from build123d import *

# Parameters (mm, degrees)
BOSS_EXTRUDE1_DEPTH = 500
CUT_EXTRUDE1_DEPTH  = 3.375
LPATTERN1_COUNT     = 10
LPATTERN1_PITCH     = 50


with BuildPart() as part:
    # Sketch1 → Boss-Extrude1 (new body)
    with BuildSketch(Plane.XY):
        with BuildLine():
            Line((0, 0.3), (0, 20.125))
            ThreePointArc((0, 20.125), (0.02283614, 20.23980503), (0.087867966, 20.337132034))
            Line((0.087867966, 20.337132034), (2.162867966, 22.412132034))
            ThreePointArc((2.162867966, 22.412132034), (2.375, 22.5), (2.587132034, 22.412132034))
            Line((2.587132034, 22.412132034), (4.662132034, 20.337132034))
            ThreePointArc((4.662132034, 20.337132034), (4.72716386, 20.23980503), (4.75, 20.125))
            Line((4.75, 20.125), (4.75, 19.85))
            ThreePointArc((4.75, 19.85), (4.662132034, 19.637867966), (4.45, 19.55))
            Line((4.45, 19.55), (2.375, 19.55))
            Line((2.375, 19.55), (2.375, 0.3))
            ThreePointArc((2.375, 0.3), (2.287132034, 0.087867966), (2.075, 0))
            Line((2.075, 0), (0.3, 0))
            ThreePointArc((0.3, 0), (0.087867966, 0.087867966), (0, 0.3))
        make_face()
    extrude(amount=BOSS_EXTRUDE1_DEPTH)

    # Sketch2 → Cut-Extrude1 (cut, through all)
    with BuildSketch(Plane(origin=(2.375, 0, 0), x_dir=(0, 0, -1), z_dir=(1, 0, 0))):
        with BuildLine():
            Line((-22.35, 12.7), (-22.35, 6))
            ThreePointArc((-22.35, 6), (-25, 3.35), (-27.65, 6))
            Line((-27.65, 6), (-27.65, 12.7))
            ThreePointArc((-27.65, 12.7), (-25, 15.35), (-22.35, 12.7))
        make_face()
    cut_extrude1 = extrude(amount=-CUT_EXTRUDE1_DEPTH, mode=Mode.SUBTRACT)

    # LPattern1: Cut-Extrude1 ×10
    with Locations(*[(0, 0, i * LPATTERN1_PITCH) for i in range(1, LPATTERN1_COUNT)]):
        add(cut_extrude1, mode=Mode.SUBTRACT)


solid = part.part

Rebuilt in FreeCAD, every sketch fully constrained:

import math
import FreeCAD as App
import Part
import Sketcher
from FreeCAD import Vector
Q = App.Units.Quantity

doc = App.newDocument("Part")
body = doc.addObject("PartDesign::Body", "Body")

# Sketch on XY plane
sketch1 = doc.addObject("Sketcher::SketchObject", "Sketch")
body.addObject(sketch1)
sketch1.AttachmentSupport = (doc.XY_Plane, [""])
sketch1.MapMode = "FlatFace"
sketch1.addGeometry(Part.LineSegment(Vector(0, 20.12, 0), Vector(0, 0.3, 0)), False)
sketch1.addGeometry(Part.ArcOfCircle(Part.Circle(Vector(0.3, 0.3, 0), Vector(0, 0, 1), 0.3), math.radians(-180), math.radians(-90)), False)
sketch1.addGeometry(Part.LineSegment(Vector(0.3, 0, 0), Vector(2.08, 0, 0)), False)
sketch1.addGeometry(Part.ArcOfCircle(Part.Circle(Vector(2.07, 0.3, 0), Vector(0, 0, 1), 0.3), math.radians(-90), math.radians(0)), False)
sketch1.addGeometry(Part.LineSegment(Vector(2.38, 0.3, 0), Vector(2.38, 19.55, 0)), False)
sketch1.addGeometry(Part.LineSegment(Vector(2.38, 19.55, 0), Vector(4.45, 19.55, 0)), False)
sketch1.addGeometry(Part.ArcOfCircle(Part.Circle(Vector(4.45, 19.85, 0), Vector(0, 0, 1), 0.3), math.radians(-90), math.radians(0)), False)
sketch1.addGeometry(Part.LineSegment(Vector(4.75, 19.85, 0), Vector(4.75, 20.12, 0)), False)
sketch1.addGeometry(Part.ArcOfCircle(Part.Circle(Vector(4.45, 20.13, 0), Vector(0, 0, 1), 0.3), math.radians(0), math.radians(45)), False)
sketch1.addGeometry(Part.LineSegment(Vector(4.66, 20.34, 0), Vector(2.59, 22.41, 0)), False)
sketch1.addGeometry(Part.ArcOfCircle(Part.Circle(Vector(2.38, 22.2, 0), Vector(0, 0, 1), 0.3), math.radians(45), math.radians(135)), False)
sketch1.addGeometry(Part.LineSegment(Vector(2.16, 22.41, 0), Vector(0.09, 20.34, 0)), False)
sketch1.addGeometry(Part.ArcOfCircle(Part.Circle(Vector(0.3, 20.13, 0), Vector(0, 0, 1), 0.3), math.radians(135), math.radians(180)), False)
sketch1.addConstraint(Sketcher.Constraint("Tangent", 0, 2, 1, 1))
sketch1.addConstraint(Sketcher.Constraint("Tangent", 1, 2, 2, 1))
sketch1.addConstraint(Sketcher.Constraint("Tangent", 2, 2, 3, 1))
sketch1.addConstraint(Sketcher.Constraint("Tangent", 3, 2, 4, 1))
sketch1.addConstraint(Sketcher.Constraint("Coincident", 4, 2, 5, 1))
sketch1.addConstraint(Sketcher.Constraint("Tangent", 5, 2, 6, 1))
sketch1.addConstraint(Sketcher.Constraint("Tangent", 6, 2, 7, 1))
sketch1.addConstraint(Sketcher.Constraint("Tangent", 7, 2, 8, 1))
sketch1.addConstraint(Sketcher.Constraint("Tangent", 8, 2, 9, 1))
sketch1.addConstraint(Sketcher.Constraint("Tangent", 9, 2, 10, 1))
sketch1.addConstraint(Sketcher.Constraint("Tangent", 10, 2, 11, 1))
sketch1.addConstraint(Sketcher.Constraint("Tangent", 11, 2, 12, 1))
sketch1.addConstraint(Sketcher.Constraint("Tangent", 12, 2, 0, 1))
sketch1.addConstraint(Sketcher.Constraint("Vertical", 0))
sketch1.addConstraint(Sketcher.Constraint("Horizontal", 2))
sketch1.addConstraint(Sketcher.Constraint("Vertical", 4))
sketch1.addConstraint(Sketcher.Constraint("Horizontal", 5))
sketch1.addConstraint(Sketcher.Constraint("Vertical", 7))
sketch1.addConstraint(Sketcher.Constraint("Equal", 1, 3))
sketch1.addConstraint(Sketcher.Constraint("Equal", 3, 6))
sketch1.addConstraint(Sketcher.Constraint("Equal", 6, 8))
sketch1.addConstraint(Sketcher.Constraint("Equal", 8, 10))
sketch1.addConstraint(Sketcher.Constraint("Equal", 10, 12))
sketch1.addConstraint(Sketcher.Constraint("PointOnObject", 0, 2, -2))
sketch1.addConstraint(Sketcher.Constraint("PointOnObject", 1, 2, -1))
sketch1.addConstraint(Sketcher.Constraint("Perpendicular", 9, 11))
sketch1.addConstraint(Sketcher.Constraint("Horizontal", 8, 3, 12, 3))
sketch1.addConstraint(Sketcher.Constraint("Horizontal", 9, 2, 10, 2))
sketch1.addConstraint(Sketcher.Constraint("Vertical", 10, 3, 3, 2))
sketch1.addConstraint(Sketcher.Constraint("Radius", 1, Q("0.3 mm")))
sketch1.addConstraint(Sketcher.Constraint("DistanceY", 4, 1, 4, 2, Q("19.25 mm")))
sketch1.addConstraint(Sketcher.Constraint("DistanceY", -1, 1, 10, 3, Q("22.2 mm")))
sketch1.addConstraint(Sketcher.Constraint("DistanceX", 2, 1, 2, 2, Q("1.775 mm")))
pad1 = doc.addObject("PartDesign::Pad", "Pad")
body.addObject(pad1)
pad1.Profile = sketch1
pad1.Length = 500

# Sketch on YZ plane
sketch2 = doc.addObject("Sketcher::SketchObject", "Sketch001")
body.addObject(sketch2)
sketch2.AttachmentSupport = (doc.YZ_Plane, [""])
sketch2.MapMode = "FlatFace"
sketch2.AttachmentOffset = App.Placement(Vector(0, 0, 2.375), App.Rotation())
sketch2.addGeometry(Part.LineSegment(Vector(6, 22.4, 0), Vector(12.7, 22.4, 0)), False)
sketch2.addGeometry(Part.ArcOfCircle(Part.Circle(Vector(12.7, 25, 0), Vector(0, 0, 1), 2.6), math.radians(-90), math.radians(90)), False)
sketch2.addGeometry(Part.LineSegment(Vector(12.7, 27.6, 0), Vector(6, 27.6, 0)), False)
sketch2.addGeometry(Part.ArcOfCircle(Part.Circle(Vector(6, 25, 0), Vector(0, 0, 1), 2.6), math.radians(90), math.radians(270)), False)
sketch2.addConstraint(Sketcher.Constraint("Tangent", 0, 2, 1, 1))
sketch2.addConstraint(Sketcher.Constraint("Tangent", 1, 2, 2, 1))
sketch2.addConstraint(Sketcher.Constraint("Tangent", 2, 2, 3, 1))
sketch2.addConstraint(Sketcher.Constraint("Tangent", 3, 2, 0, 1))
sketch2.addConstraint(Sketcher.Constraint("Horizontal", 0))
sketch2.addConstraint(Sketcher.Constraint("Horizontal", 2))
sketch2.addConstraint(Sketcher.Constraint("Radius", 1, Q("2.65 mm")))
sketch2.addConstraint(Sketcher.Constraint("DistanceX", 0, 1, 0, 2, Q("6.7 mm")))
sketch2.addConstraint(Sketcher.Constraint("DistanceY", -1, 1, 1, 3, Q("25 mm")))
sketch2.addConstraint(Sketcher.Constraint("DistanceX", -1, 1, 3, 3, Q("6 mm")))
pocket1 = doc.addObject("PartDesign::Pocket", "Pocket")
body.addObject(pocket1)
pocket1.Profile = sketch2
pocket1.Type = "ThroughAll"
doc.recompute()

linearpattern = doc.addObject("PartDesign::LinearPattern", "LinearPattern")
body.addObject(linearpattern)
linearpattern.Originals = [pocket1]
linearpattern.Direction = (doc.Z_Axis, [""])
linearpattern.Mode = "offset"
linearpattern.Offset = 50
linearpattern.Occurrences = 10
body.Tip = linearpattern

doc.recompute()
